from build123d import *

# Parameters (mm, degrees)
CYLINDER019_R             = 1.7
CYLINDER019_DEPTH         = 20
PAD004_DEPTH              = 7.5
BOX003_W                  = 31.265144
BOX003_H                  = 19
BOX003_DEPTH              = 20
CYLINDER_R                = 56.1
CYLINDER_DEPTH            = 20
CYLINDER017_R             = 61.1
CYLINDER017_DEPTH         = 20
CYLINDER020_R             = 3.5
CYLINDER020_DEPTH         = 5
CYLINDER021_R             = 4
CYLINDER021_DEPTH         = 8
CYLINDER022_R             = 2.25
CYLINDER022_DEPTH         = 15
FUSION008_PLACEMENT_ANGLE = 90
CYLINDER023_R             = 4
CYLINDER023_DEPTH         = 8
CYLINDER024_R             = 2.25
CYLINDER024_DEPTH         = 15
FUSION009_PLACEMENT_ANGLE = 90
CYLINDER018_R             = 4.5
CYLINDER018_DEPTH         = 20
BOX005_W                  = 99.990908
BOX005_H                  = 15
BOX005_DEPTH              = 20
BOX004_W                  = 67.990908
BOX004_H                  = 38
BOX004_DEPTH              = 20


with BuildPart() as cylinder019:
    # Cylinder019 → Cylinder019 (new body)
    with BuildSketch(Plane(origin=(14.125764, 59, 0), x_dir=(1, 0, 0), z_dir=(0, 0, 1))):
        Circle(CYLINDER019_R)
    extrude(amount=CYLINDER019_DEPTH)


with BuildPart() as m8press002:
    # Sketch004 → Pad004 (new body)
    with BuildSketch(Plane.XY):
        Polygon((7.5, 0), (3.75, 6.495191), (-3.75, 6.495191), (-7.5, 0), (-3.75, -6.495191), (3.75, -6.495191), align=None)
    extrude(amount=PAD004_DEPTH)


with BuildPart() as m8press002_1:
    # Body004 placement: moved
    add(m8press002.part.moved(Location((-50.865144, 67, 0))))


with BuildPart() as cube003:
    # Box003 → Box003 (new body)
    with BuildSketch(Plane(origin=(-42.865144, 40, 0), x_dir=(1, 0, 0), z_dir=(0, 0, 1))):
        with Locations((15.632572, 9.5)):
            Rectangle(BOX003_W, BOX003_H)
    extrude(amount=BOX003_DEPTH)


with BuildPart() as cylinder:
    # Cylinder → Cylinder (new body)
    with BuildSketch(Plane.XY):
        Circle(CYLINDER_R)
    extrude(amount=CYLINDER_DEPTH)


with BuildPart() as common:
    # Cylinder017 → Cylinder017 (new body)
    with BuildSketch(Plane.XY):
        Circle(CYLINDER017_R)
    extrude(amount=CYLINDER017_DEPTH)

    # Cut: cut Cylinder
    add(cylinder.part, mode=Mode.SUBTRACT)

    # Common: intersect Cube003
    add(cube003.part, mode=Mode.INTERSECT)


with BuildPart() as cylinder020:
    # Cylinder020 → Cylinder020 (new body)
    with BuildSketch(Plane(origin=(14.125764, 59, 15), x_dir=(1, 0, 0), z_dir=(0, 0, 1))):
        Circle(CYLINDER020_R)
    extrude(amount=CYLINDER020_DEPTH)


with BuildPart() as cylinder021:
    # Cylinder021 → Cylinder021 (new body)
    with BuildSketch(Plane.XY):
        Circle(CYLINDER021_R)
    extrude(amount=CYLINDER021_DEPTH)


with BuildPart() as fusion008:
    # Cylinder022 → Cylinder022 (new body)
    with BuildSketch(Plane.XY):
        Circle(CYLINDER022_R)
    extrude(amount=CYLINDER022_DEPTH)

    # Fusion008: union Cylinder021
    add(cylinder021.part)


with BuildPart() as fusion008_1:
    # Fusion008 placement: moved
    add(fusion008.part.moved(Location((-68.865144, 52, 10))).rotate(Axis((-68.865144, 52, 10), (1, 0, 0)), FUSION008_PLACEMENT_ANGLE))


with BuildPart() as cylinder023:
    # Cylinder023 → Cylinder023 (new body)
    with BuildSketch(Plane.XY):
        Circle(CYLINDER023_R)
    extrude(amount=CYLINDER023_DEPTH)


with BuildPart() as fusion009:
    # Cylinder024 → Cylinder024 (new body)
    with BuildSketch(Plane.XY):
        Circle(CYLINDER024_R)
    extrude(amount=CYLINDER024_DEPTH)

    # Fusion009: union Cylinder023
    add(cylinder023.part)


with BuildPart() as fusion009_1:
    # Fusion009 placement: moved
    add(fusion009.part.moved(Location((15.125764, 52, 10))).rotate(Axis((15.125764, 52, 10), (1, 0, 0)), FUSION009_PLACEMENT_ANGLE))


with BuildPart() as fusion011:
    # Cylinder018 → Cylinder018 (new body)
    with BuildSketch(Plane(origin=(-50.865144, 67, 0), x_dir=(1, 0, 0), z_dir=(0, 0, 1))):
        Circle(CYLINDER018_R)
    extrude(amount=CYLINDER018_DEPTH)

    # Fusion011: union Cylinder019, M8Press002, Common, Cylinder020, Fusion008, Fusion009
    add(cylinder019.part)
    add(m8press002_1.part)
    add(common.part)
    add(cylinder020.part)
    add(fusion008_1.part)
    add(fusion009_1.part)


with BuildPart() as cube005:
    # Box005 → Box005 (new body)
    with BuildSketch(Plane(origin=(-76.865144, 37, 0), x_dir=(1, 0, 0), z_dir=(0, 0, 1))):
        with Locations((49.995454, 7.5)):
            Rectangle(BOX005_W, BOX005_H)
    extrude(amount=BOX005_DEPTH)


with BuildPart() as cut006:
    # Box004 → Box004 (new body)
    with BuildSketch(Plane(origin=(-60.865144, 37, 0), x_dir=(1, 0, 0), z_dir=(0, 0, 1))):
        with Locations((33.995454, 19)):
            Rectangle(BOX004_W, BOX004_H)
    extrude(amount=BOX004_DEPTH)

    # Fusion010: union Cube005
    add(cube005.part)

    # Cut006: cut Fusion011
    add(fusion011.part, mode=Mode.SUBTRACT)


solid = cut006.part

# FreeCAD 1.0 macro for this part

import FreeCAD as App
import Part
import Sketcher

V = App.Vector
Q = App.Units.Quantity


def add_polygon(sketch, points):
    """Adds a closed chain of lines whose ends are joined by coincident constraints."""
    first, n = sketch.GeometryCount, len(points)
    for a, b in zip(points, points[1:] + points[:1]):
        sketch.addGeometry(Part.LineSegment(App.Vector(*a, 0), App.Vector(*b, 0)), False)
    for i in range(n):
        sketch.addConstraint(Sketcher.Constraint("Coincident", first + i, 2, first + (i + 1) % n, 1))

doc = App.newDocument("Part")
params = doc.addObject("Spreadsheet::Sheet", "Params")
for row, (alias, value) in enumerate([
    ("sketch1_diameter", "3.4 mm"),
    ("pad1_length", "20 mm"),
    ("sketch2_width", "7.5 mm"),
    ("pad2_length", "7.5 mm"),
    ("sketch3_height", "19 mm"),
    ("pad3_length", "20 mm"),
    ("sketch4_diameter", "112.2 mm"),
    ("pad4_length", "20 mm"),
    ("sketch5_diameter", "122.2 mm"),
    ("pad5_length", "20 mm"),
    ("sketch6_diameter", "7 mm"),
    ("pad6_length", "5 mm"),
    ("sketch7_diameter", "8 mm"),
    ("pad7_length", "8 mm"),
    ("sketch8_diameter", "4.5 mm"),
    ("pad8_length", "15 mm"),
    ("sketch9_diameter", "8 mm"),
    ("pad9_length", "8 mm"),
    ("sketch10_diameter", "4.5 mm"),
    ("pad10_length", "15 mm"),
    ("sketch11_diameter", "9 mm"),
    ("pad11_length", "20 mm"),
    ("sketch12_height", "15 mm"),
    ("pad12_length", "20 mm"),
    ("sketch13_height", "38 mm"),
    ("pad13_length", "20 mm"),
], start=1):
    params.set(f"A{row}", alias)
    params.set(f"B{row}", "=" + value)
    params.setAlias(f"B{row}", alias)

body = doc.addObject("PartDesign::Body", "Body")

sketch1 = doc.addObject("Sketcher::SketchObject", "Sketch")
body.addObject(sketch1)
sketch1.AttachmentSupport = (doc.XY_Plane, [""])
sketch1.MapMode = "FlatFace"
sketch1.addGeometry(Part.Circle(V(14.1, 59, 0), V(0, 0, 1), 1.7), False)
sketch1.addConstraint(Sketcher.Constraint("Diameter", 0, 3.4))
sketch1.addConstraint(Sketcher.Constraint("DistanceY", -1, 1, 0, 3, 59.0))
sketch1.addConstraint(Sketcher.Constraint("DistanceX", -1, 1, 0, 3, 14.125764))
sketch1.setExpression("Constraints[0]", "Params.sketch1_diameter")
pad1 = doc.addObject("PartDesign::Pad", "Pad")
body.addObject(pad1)
pad1.Profile = sketch1
pad1.setExpression("Length", "Params.pad1_length")
body2 = doc.addObject("PartDesign::Body", "Body001")

sketch2 = doc.addObject("Sketcher::SketchObject", "Sketch001")
body2.addObject(sketch2)
sketch2.AttachmentSupport = (doc.getObject("XY_Plane001"), [""])
sketch2.MapMode = "FlatFace"
add_polygon(sketch2, [(8, 0), (4, 6), (-4, 6), (-8, 0), (-4, -6), (4, -6)])
sketch2.addConstraint(Sketcher.Constraint("Horizontal", 1))
sketch2.addConstraint(Sketcher.Constraint("Horizontal", 4))
sketch2.addConstraint(Sketcher.Constraint("Symmetric", 0, 2, 3, 2, -1, 1))
sketch2.addConstraint(Sketcher.Constraint("Symmetric", 2, 2, 5, 2, -1, 1))
sketch2.addConstraint(Sketcher.Constraint("PointOnObject", 2, 2, -1))
sketch2.addConstraint(Sketcher.Constraint("Parallel", 2, 5))
sketch2.addConstraint(Sketcher.Constraint("Vertical", 1, 2, 3, 2))
sketch2.addConstraint(Sketcher.Constraint("Angle", 0, Q("119.999998 deg")))
sketch2.addConstraint(Sketcher.Constraint("DistanceX", 1, 2, 1, 1, 7.5))
sketch2.addConstraint(Sketcher.Constraint("DistanceX", 2, 2, 5, 2, 15.0))
sketch2.setExpression("Constraints[14]", "Params.sketch2_width")
pad2 = doc.addObject("PartDesign::Pad", "Pad001")
body2.addObject(pad2)
pad2.Profile = sketch2
pad2.setExpression("Length", "Params.pad2_length")
body3 = doc.addObject("PartDesign::Body", "Body002")
doc.recompute()

body2.Placement = App.Placement(V(-50.865144, 67, 0), App.Rotation(V(0, 0, 1), 0))
boolean = doc.addObject("PartDesign::Boolean", "Boolean")
body3.addObject(boolean)
boolean.Type = "Fuse"
boolean.addObjects([body2])
body4 = doc.addObject("PartDesign::Body", "Body003")

sketch3 = doc.addObject("Sketcher::SketchObject", "Sketch002")
body4.addObject(sketch3)
sketch3.AttachmentSupport = (doc.getObject("XY_Plane003"), [""])
sketch3.MapMode = "FlatFace"
add_polygon(sketch3, [(-43, 59), (-43, 40), (-12, 40), (-12, 59)])
sketch3.addConstraint(Sketcher.Constraint("Vertical", 0))
sketch3.addConstraint(Sketcher.Constraint("Horizontal", 1))
sketch3.addConstraint(Sketcher.Constraint("Vertical", 2))
sketch3.addConstraint(Sketcher.Constraint("Horizontal", 3))
sketch3.addConstraint(Sketcher.Constraint("DistanceY", 0, 2, 0, 1, 19.0))
sketch3.addConstraint(Sketcher.Constraint("DistanceY", -1, 1, 0, 2, 40.0))
sketch3.addConstraint(Sketcher.Constraint("DistanceX", 1, 2, -1, 1, 11.6))
sketch3.addConstraint(Sketcher.Constraint("DistanceX", 1, 1, 1, 2, 31.265144))
sketch3.setExpression("Constraints[8]", "Params.sketch3_height")
pad3 = doc.addObject("PartDesign::Pad", "Pad002")
body4.addObject(pad3)
pad3.Profile = sketch3
pad3.setExpression("Length", "Params.pad3_length")
body5 = doc.addObject("PartDesign::Body", "Body004")

sketch4 = doc.addObject("Sketcher::SketchObject", "Sketch003")
body5.addObject(sketch4)
sketch4.AttachmentSupport = (doc.getObject("XY_Plane004"), [""])
sketch4.MapMode = "FlatFace"
sketch4.addGeometry(Part.Circle(V(0, 0, 0), V(0, 0, 1), 56), False)
sketch4.addConstraint(Sketcher.Constraint("Coincident", 0, 3, -1, 1))
sketch4.addConstraint(Sketcher.Constraint("Diameter", 0, 112.2))
sketch4.setExpression("Constraints[1]", "Params.sketch4_diameter")
pad4 = doc.addObject("PartDesign::Pad", "Pad003")
body5.addObject(pad4)
pad4.Profile = sketch4
pad4.setExpression("Length", "Params.pad4_length")
body6 = doc.addObject("PartDesign::Body", "Body005")

sketch5 = doc.addObject("Sketcher::SketchObject", "Sketch004")
body6.addObject(sketch5)
sketch5.AttachmentSupport = (doc.getObject("XY_Plane005"), [""])
sketch5.MapMode = "FlatFace"
sketch5.addGeometry(Part.Circle(V(0, 0, 0), V(0, 0, 1), 61), False)
sketch5.addConstraint(Sketcher.Constraint("Coincident", 0, 3, -1, 1))
sketch5.addConstraint(Sketcher.Constraint("Diameter", 0, 122.2))
sketch5.setExpression("Constraints[1]", "Params.sketch5_diameter")
pad5 = doc.addObject("PartDesign::Pad", "Pad004")
body6.addObject(pad5)
pad5.Profile = sketch5
pad5.setExpression("Length", "Params.pad5_length")
doc.recompute()

boolean2 = doc.addObject("PartDesign::Boolean", "Boolean001")
body6.addObject(boolean2)
boolean2.Type = "Cut"
boolean2.addObjects([body5])
doc.recompute()

boolean3 = doc.addObject("PartDesign::Boolean", "Boolean002")
body6.addObject(boolean3)
boolean3.Type = "Common"
boolean3.addObjects([body4])
body7 = doc.addObject("PartDesign::Body", "Body006")

sketch6 = doc.addObject("Sketcher::SketchObject", "Sketch005")
body7.addObject(sketch6)
sketch6.AttachmentSupport = (doc.getObject("XY_Plane006"), [""])
sketch6.MapMode = "FlatFace"
sketch6.AttachmentOffset = App.Placement(V(0, 0, 15), App.Rotation())
sketch6.addGeometry(Part.Circle(V(14.1, 59, 0), V(0, 0, 1), 3.5), False)
sketch6.addConstraint(Sketcher.Constraint("Diameter", 0, 7.0))
sketch6.addConstraint(Sketcher.Constraint("DistanceY", -1, 1, 0, 3, 59.0))
sketch6.addConstraint(Sketcher.Constraint("DistanceX", -1, 1, 0, 3, 14.125764))
sketch6.setExpression("Constraints[0]", "Params.sketch6_diameter")
pad6 = doc.addObject("PartDesign::Pad", "Pad005")
body7.addObject(pad6)
pad6.Profile = sketch6
pad6.setExpression("Length", "Params.pad6_length")
body8 = doc.addObject("PartDesign::Body", "Body007")

sketch7 = doc.addObject("Sketcher::SketchObject", "Sketch006")
body8.addObject(sketch7)
sketch7.AttachmentSupport = (doc.getObject("XY_Plane007"), [""])
sketch7.MapMode = "FlatFace"
sketch7.addGeometry(Part.Circle(V(0, 0, 0), V(0, 0, 1), 4), False)
sketch7.addConstraint(Sketcher.Constraint("Coincident", 0, 3, -1, 1))
sketch7.addConstraint(Sketcher.Constraint("Diameter", 0, 8.0))
sketch7.setExpression("Constraints[1]", "Params.sketch7_diameter")
pad7 = doc.addObject("PartDesign::Pad", "Pad006")
body8.addObject(pad7)
pad7.Profile = sketch7
pad7.setExpression("Length", "Params.pad7_length")
body9 = doc.addObject("PartDesign::Body", "Body008")

sketch8 = doc.addObject("Sketcher::SketchObject", "Sketch007")
body9.addObject(sketch8)
sketch8.AttachmentSupport = (doc.getObject("XY_Plane008"), [""])
sketch8.MapMode = "FlatFace"
sketch8.addGeometry(Part.Circle(V(0, 0, 0), V(0, 0, 1), 2.2), False)
sketch8.addConstraint(Sketcher.Constraint("Coincident", 0, 3, -1, 1))
sketch8.addConstraint(Sketcher.Constraint("Diameter", 0, 4.5))
sketch8.setExpression("Constraints[1]", "Params.sketch8_diameter")
pad8 = doc.addObject("PartDesign::Pad", "Pad007")
body9.addObject(pad8)
pad8.Profile = sketch8
pad8.setExpression("Length", "Params.pad8_length")
doc.recompute()

boolean4 = doc.addObject("PartDesign::Boolean", "Boolean003")
body9.addObject(boolean4)
boolean4.Type = "Fuse"
boolean4.addObjects([body8])
body10 = doc.addObject("PartDesign::Body", "Body009")
doc.recompute()

body9.Placement = App.Placement(V(-68.865144, 52, 10), App.Rotation(V(1, 0, 0), 90))
boolean5 = doc.addObject("PartDesign::Boolean", "Boolean004")
body10.addObject(boolean5)
boolean5.Type = "Fuse"
boolean5.addObjects([body9])
body11 = doc.addObject("PartDesign::Body", "Body010")

sketch9 = doc.addObject("Sketcher::SketchObject", "Sketch008")
body11.addObject(sketch9)
sketch9.AttachmentSupport = (doc.getObject("XY_Plane010"), [""])
sketch9.MapMode = "FlatFace"
sketch9.addGeometry(Part.Circle(V(0, 0, 0), V(0, 0, 1), 4), False)
sketch9.addConstraint(Sketcher.Constraint("Coincident", 0, 3, -1, 1))
sketch9.addConstraint(Sketcher.Constraint("Diameter", 0, 8.0))
sketch9.setExpression("Constraints[1]", "Params.sketch9_diameter")
pad9 = doc.addObject("PartDesign::Pad", "Pad008")
body11.addObject(pad9)
pad9.Profile = sketch9
pad9.setExpression("Length", "Params.pad9_length")
body12 = doc.addObject("PartDesign::Body", "Body011")

sketch10 = doc.addObject("Sketcher::SketchObject", "Sketch009")
body12.addObject(sketch10)
sketch10.AttachmentSupport = (doc.getObject("XY_Plane011"), [""])
sketch10.MapMode = "FlatFace"
sketch10.addGeometry(Part.Circle(V(0, 0, 0), V(0, 0, 1), 2.2), False)
sketch10.addConstraint(Sketcher.Constraint("Coincident", 0, 3, -1, 1))
sketch10.addConstraint(Sketcher.Constraint("Diameter", 0, 4.5))
sketch10.setExpression("Constraints[1]", "Params.sketch10_diameter")
pad10 = doc.addObject("PartDesign::Pad", "Pad009")
body12.addObject(pad10)
pad10.Profile = sketch10
pad10.setExpression("Length", "Params.pad10_length")
doc.recompute()

boolean6 = doc.addObject("PartDesign::Boolean", "Boolean005")
body12.addObject(boolean6)
boolean6.Type = "Fuse"
boolean6.addObjects([body11])
body13 = doc.addObject("PartDesign::Body", "Body012")
doc.recompute()

body12.Placement = App.Placement(V(15.125764, 52, 10), App.Rotation(V(1, 0, 0), 90))
boolean7 = doc.addObject("PartDesign::Boolean", "Boolean006")
body13.addObject(boolean7)
boolean7.Type = "Fuse"
boolean7.addObjects([body12])
body14 = doc.addObject("PartDesign::Body", "Body013")
body14.AllowCompound = True

sketch11 = doc.addObject("Sketcher::SketchObject", "Sketch010")
body14.addObject(sketch11)
sketch11.AttachmentSupport = (doc.getObject("XY_Plane013"), [""])
sketch11.MapMode = "FlatFace"
sketch11.addGeometry(Part.Circle(V(-50.9, 67, 0), V(0, 0, 1), 4.5), False)
sketch11.addConstraint(Sketcher.Constraint("Diameter", 0, 9.0))
sketch11.addConstraint(Sketcher.Constraint("DistanceY", -1, 1, 0, 3, 67.0))
sketch11.addConstraint(Sketcher.Constraint("DistanceX", 0, 3, -1, 1, 50.865144))
sketch11.setExpression("Constraints[0]", "Params.sketch11_diameter")
pad11 = doc.addObject("PartDesign::Pad", "Pad010")
body14.addObject(pad11)
pad11.Profile = sketch11
pad11.setExpression("Length", "Params.pad11_length")
doc.recompute()

boolean8 = doc.addObject("PartDesign::Boolean", "Boolean007")
body14.addObject(boolean8)
boolean8.Type = "Fuse"
boolean8.addObjects([body])
doc.recompute()

boolean9 = doc.addObject("PartDesign::Boolean", "Boolean008")
body14.addObject(boolean9)
boolean9.Type = "Fuse"
boolean9.addObjects([body3])
doc.recompute()

boolean10 = doc.addObject("PartDesign::Boolean", "Boolean009")
body14.addObject(boolean10)
boolean10.Type = "Fuse"
boolean10.addObjects([body6])
doc.recompute()

boolean11 = doc.addObject("PartDesign::Boolean", "Boolean010")
body14.addObject(boolean11)
boolean11.Type = "Fuse"
boolean11.addObjects([body7])
doc.recompute()

boolean12 = doc.addObject("PartDesign::Boolean", "Boolean011")
body14.addObject(boolean12)
boolean12.Type = "Fuse"
boolean12.addObjects([body10])
doc.recompute()

boolean13 = doc.addObject("PartDesign::Boolean", "Boolean012")
body14.addObject(boolean13)
boolean13.Type = "Fuse"
boolean13.addObjects([body13])
body15 = doc.addObject("PartDesign::Body", "Body014")

sketch12 = doc.addObject("Sketcher::SketchObject", "Sketch011")
body15.addObject(sketch12)
sketch12.AttachmentSupport = (doc.getObject("XY_Plane014"), [""])
sketch12.MapMode = "FlatFace"
add_polygon(sketch12, [(-77, 52), (-77, 37), (23, 37), (23, 52)])
sketch12.addConstraint(Sketcher.Constraint("Vertical", 0))
sketch12.addConstraint(Sketcher.Constraint("Horizontal", 1))
sketch12.addConstraint(Sketcher.Constraint("Vertical", 2))
sketch12.addConstraint(Sketcher.Constraint("Horizontal", 3))
sketch12.addConstraint(Sketcher.Constraint("DistanceY", 0, 2, 0, 1, 15.0))
sketch12.addConstraint(Sketcher.Constraint("DistanceY", -1, 1, 0, 2, 37.0))
sketch12.addConstraint(Sketcher.Constraint("DistanceX", 1, 1, 1, 2, 99.990908))
sketch12.addConstraint(Sketcher.Constraint("DistanceX", 0, 2, -1, 1, 76.865144))
sketch12.setExpression("Constraints[8]", "Params.sketch12_height")
pad12 = doc.addObject("PartDesign::Pad", "Pad011")
body15.addObject(pad12)
pad12.Profile = sketch12
pad12.setExpression("Length", "Params.pad12_length")
body16 = doc.addObject("PartDesign::Body", "Body015")

sketch13 = doc.addObject("Sketcher::SketchObject", "Sketch012")
body16.addObject(sketch13)
sketch13.AttachmentSupport = (doc.getObject("XY_Plane015"), [""])
sketch13.MapMode = "FlatFace"
add_polygon(sketch13, [(-61, 75), (-61, 37), (7, 37), (7, 75)])
sketch13.addConstraint(Sketcher.Constraint("Vertical", 0))
sketch13.addConstraint(Sketcher.Constraint("Horizontal", 1))
sketch13.addConstraint(Sketcher.Constraint("Vertical", 2))
sketch13.addConstraint(Sketcher.Constraint("Horizontal", 3))
sketch13.addConstraint(Sketcher.Constraint("DistanceY", 0, 2, 0, 1, 38.0))
sketch13.addConstraint(Sketcher.Constraint("DistanceY", -1, 1, 0, 2, 37.0))
sketch13.addConstraint(Sketcher.Constraint("DistanceX", 1, 1, 1, 2, 67.990908))
sketch13.addConstraint(Sketcher.Constraint("DistanceX", 0, 2, -1, 1, 60.865144))
sketch13.setExpression("Constraints[8]", "Params.sketch13_height")
pad13 = doc.addObject("PartDesign::Pad", "Pad012")
body16.addObject(pad13)
pad13.Profile = sketch13
pad13.setExpression("Length", "Params.pad13_length")
doc.recompute()

boolean14 = doc.addObject("PartDesign::Boolean", "Boolean013")
body16.addObject(boolean14)
boolean14.Type = "Fuse"
boolean14.addObjects([body15])
doc.recompute()

boolean15 = doc.addObject("PartDesign::Boolean", "Boolean014")
body16.addObject(boolean15)
boolean15.Type = "Cut"
boolean15.addObjects([body14])

doc.recompute()
